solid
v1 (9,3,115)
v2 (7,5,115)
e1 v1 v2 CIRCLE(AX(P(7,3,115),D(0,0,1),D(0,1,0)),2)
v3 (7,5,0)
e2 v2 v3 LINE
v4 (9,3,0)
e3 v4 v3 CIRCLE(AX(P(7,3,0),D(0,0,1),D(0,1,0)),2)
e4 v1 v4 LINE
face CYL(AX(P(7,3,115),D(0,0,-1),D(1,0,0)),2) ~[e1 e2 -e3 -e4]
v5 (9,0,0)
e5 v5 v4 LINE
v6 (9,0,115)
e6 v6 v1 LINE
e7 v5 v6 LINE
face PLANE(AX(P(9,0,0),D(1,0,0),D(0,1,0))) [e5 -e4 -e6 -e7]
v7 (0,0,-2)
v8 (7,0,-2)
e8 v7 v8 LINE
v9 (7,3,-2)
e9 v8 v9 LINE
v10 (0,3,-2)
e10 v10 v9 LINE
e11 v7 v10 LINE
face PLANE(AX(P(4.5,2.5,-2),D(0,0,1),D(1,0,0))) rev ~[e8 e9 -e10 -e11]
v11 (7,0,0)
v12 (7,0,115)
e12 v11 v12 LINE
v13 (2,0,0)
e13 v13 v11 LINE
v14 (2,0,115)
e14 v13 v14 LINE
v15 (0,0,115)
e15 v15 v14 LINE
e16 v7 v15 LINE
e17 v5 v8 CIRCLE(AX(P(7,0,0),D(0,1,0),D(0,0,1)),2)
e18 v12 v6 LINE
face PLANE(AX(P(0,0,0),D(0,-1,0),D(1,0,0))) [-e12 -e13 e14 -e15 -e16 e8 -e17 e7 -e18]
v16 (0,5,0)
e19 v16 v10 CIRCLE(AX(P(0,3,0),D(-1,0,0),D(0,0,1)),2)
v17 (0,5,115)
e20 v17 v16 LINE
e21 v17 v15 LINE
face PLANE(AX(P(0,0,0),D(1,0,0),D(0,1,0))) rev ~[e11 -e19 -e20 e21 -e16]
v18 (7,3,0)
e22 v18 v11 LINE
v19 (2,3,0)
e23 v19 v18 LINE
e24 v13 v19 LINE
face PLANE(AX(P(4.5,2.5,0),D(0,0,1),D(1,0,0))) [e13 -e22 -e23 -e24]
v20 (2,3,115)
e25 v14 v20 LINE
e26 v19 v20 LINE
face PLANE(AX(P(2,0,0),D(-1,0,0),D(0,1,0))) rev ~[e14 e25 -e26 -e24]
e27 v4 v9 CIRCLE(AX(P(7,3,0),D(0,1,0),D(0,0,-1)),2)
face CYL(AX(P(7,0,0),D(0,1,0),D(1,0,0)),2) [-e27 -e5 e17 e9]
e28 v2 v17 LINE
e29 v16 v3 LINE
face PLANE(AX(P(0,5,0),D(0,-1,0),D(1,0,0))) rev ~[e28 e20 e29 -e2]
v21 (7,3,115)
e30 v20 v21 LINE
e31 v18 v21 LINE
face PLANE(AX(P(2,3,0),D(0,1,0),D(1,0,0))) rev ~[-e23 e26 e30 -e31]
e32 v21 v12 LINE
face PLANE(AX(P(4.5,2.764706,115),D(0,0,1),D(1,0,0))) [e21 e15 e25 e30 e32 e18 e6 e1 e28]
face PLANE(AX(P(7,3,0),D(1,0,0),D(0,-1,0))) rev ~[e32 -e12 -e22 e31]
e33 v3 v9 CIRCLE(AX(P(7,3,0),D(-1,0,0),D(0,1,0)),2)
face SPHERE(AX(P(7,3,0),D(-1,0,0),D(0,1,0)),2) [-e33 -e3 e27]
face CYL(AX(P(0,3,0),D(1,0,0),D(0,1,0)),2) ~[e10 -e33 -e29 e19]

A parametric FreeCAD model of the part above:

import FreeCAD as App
import Part
import Sketcher

V = App.Vector
Q = App.Units.Quantity


def edges_at(feature, points):
    """Names of the edges that pass closest to the given points."""
    edges = feature.Shape.Edges
    near = lambda p: min(range(len(edges)), key=lambda i: edges[i].distToShape(Part.Vertex(*p))[0])
    return sorted({f"Edge{near(p) + 1}" for p in points})

doc = App.newDocument("Part")
params = doc.addObject("Spreadsheet::Sheet", "Params")
for row, (alias, value) in enumerate([
    ("sketch1_width", "2 mm"),
    ("sketch1_width2", "5 mm"),
    ("sketch1_height", "3 mm"),
    ("pad1_length", "115 mm"),
    ("sketch2_width", "9 mm"),
    ("sketch2_height", "5 mm"),
    ("pad2_length", "2 mm"),
    ("fillet_radius", "2 mm"),
], start=1):
    params.set(f"A{row}", alias)
    params.set(f"B{row}", "=" + value)
    params.setAlias(f"B{row}", alias)

body = doc.addObject("PartDesign::Body", "Body")

sketch1 = doc.addObject("Sketcher::SketchObject", "Sketch")
body.addObject(sketch1)
sketch1.AttachmentSupport = (doc.XY_Plane, [""])
sketch1.MapMode = "FlatFace"
sketch1.addGeometry([
    Part.LineSegment(V(0, 5, 0), V(0, 0, 0)),
    Part.LineSegment(V(0, 0, 0), V(2, 0, 0)),
    Part.LineSegment(V(2, 0, 0), V(2, 3, 0)),
    Part.LineSegment(V(2, 3, 0), V(7, 3, 0)),
    Part.LineSegment(V(7, 3, 0), V(7, 0, 0)),
    Part.LineSegment(V(7, 0, 0), V(9, 0, 0)),
    Part.LineSegment(V(9, 0, 0), V(9, 5, 0)),
    Part.LineSegment(V(9, 5, 0), V(0, 5, 0)),
], False)
sketch1.addConstraint([
    Sketcher.Constraint("Coincident", 0, 2, 1, 1),
    Sketcher.Constraint("Coincident", 1, 2, 2, 1),
    Sketcher.Constraint("Coincident", 2, 2, 3, 1),
    Sketcher.Constraint("Coincident", 3, 2, 4, 1),
    Sketcher.Constraint("Coincident", 4, 2, 5, 1),
    Sketcher.Constraint("Coincident", 5, 2, 6, 1),
    Sketcher.Constraint("Coincident", 6, 2, 7, 1),
    Sketcher.Constraint("Coincident", 7, 2, 0, 1),
    Sketcher.Constraint("Vertical", 0),
    Sketcher.Constraint("Horizontal", 1),
    Sketcher.Constraint("Vertical", 2),
    Sketcher.Constraint("Horizontal", 3),
    Sketcher.Constraint("Vertical", 4),
    Sketcher.Constraint("Horizontal", 5),
    Sketcher.Constraint("Vertical", 6),
    Sketcher.Constraint("Horizontal", 7),
    Sketcher.Constraint("Coincident", 0, 2, -1, 1),
    Sketcher.Constraint("PointOnObject", 4, 2, -1),
    Sketcher.Constraint("Equal", 1, 5),
    Sketcher.Constraint("Equal", 3, 0),
    Sketcher.Constraint("DistanceX", 1, 1, 1, 2, Q("2 mm")),
    Sketcher.Constraint("DistanceX", 3, 1, 3, 2, Q("5 mm")),
    Sketcher.Constraint("DistanceY", 2, 1, 2, 2, Q("3 mm")),
])
sketch1.setExpression("Constraints[20]", "Params.sketch1_width")
sketch1.setExpression("Constraints[21]", "Params.sketch1_width2")
sketch1.setExpression("Constraints[22]", "Params.sketch1_height")
pad1 = doc.addObject("PartDesign::Pad", "Pad")
body.addObject(pad1)
pad1.Profile = sketch1
pad1.setExpression("Length", "Params.pad1_length")

sketch2 = doc.addObject("Sketcher::SketchObject", "Sketch001")
body.addObject(sketch2)
sketch2.AttachmentSupport = (doc.XY_Plane, [""])
sketch2.MapMode = "FlatFace"
sketch2.addGeometry([
    Part.LineSegment(V(0, 5, 0), V(0, 0, 0)),
    Part.LineSegment(V(0, 0, 0), V(9, 0, 0)),
    Part.LineSegment(V(9, 0, 0), V(9, 5, 0)),
    Part.LineSegment(V(9, 5, 0), V(0, 5, 0)),
], False)
sketch2.addConstraint([
    Sketcher.Constraint("Coincident", 0, 2, 1, 1),
    Sketcher.Constraint("Coincident", 1, 2, 2, 1),
    Sketcher.Constraint("Coincident", 2, 2, 3, 1),
    Sketcher.Constraint("Coincident", 3, 2, 0, 1),
    Sketcher.Constraint("Vertical", 0),
    Sketcher.Constraint("Horizontal", 1),
    Sketcher.Constraint("Vertical", 2),
    Sketcher.Constraint("Horizontal", 3),
    Sketcher.Constraint("Coincident", 0, 2, -1, 1),
    Sketcher.Constraint("DistanceX", 1, 1, 1, 2, Q("9 mm")),
    Sketcher.Constraint("DistanceY", 0, 2, 0, 1, Q("5 mm")),
])
sketch2.setExpression("Constraints[9]", "Params.sketch2_width")
sketch2.setExpression("Constraints[10]", "Params.sketch2_height")
pad2 = doc.addObject("PartDesign::Pad", "Pad001")
body.addObject(pad2)
pad2.Profile = sketch2
pad2.setExpression("Length", "Params.pad2_length")
pad2.Reversed = True
doc.recompute()

fillet = doc.addObject("PartDesign::Fillet", "Fillet")
body.addObject(fillet)
fillet.Base = (pad2, edges_at(pad2, [(4.5, 5, -2), (9, 5, 56.5), (9, 2.5, -2)]))
fillet.setExpression("Radius", "Params.fillet_radius")

doc.recompute()
